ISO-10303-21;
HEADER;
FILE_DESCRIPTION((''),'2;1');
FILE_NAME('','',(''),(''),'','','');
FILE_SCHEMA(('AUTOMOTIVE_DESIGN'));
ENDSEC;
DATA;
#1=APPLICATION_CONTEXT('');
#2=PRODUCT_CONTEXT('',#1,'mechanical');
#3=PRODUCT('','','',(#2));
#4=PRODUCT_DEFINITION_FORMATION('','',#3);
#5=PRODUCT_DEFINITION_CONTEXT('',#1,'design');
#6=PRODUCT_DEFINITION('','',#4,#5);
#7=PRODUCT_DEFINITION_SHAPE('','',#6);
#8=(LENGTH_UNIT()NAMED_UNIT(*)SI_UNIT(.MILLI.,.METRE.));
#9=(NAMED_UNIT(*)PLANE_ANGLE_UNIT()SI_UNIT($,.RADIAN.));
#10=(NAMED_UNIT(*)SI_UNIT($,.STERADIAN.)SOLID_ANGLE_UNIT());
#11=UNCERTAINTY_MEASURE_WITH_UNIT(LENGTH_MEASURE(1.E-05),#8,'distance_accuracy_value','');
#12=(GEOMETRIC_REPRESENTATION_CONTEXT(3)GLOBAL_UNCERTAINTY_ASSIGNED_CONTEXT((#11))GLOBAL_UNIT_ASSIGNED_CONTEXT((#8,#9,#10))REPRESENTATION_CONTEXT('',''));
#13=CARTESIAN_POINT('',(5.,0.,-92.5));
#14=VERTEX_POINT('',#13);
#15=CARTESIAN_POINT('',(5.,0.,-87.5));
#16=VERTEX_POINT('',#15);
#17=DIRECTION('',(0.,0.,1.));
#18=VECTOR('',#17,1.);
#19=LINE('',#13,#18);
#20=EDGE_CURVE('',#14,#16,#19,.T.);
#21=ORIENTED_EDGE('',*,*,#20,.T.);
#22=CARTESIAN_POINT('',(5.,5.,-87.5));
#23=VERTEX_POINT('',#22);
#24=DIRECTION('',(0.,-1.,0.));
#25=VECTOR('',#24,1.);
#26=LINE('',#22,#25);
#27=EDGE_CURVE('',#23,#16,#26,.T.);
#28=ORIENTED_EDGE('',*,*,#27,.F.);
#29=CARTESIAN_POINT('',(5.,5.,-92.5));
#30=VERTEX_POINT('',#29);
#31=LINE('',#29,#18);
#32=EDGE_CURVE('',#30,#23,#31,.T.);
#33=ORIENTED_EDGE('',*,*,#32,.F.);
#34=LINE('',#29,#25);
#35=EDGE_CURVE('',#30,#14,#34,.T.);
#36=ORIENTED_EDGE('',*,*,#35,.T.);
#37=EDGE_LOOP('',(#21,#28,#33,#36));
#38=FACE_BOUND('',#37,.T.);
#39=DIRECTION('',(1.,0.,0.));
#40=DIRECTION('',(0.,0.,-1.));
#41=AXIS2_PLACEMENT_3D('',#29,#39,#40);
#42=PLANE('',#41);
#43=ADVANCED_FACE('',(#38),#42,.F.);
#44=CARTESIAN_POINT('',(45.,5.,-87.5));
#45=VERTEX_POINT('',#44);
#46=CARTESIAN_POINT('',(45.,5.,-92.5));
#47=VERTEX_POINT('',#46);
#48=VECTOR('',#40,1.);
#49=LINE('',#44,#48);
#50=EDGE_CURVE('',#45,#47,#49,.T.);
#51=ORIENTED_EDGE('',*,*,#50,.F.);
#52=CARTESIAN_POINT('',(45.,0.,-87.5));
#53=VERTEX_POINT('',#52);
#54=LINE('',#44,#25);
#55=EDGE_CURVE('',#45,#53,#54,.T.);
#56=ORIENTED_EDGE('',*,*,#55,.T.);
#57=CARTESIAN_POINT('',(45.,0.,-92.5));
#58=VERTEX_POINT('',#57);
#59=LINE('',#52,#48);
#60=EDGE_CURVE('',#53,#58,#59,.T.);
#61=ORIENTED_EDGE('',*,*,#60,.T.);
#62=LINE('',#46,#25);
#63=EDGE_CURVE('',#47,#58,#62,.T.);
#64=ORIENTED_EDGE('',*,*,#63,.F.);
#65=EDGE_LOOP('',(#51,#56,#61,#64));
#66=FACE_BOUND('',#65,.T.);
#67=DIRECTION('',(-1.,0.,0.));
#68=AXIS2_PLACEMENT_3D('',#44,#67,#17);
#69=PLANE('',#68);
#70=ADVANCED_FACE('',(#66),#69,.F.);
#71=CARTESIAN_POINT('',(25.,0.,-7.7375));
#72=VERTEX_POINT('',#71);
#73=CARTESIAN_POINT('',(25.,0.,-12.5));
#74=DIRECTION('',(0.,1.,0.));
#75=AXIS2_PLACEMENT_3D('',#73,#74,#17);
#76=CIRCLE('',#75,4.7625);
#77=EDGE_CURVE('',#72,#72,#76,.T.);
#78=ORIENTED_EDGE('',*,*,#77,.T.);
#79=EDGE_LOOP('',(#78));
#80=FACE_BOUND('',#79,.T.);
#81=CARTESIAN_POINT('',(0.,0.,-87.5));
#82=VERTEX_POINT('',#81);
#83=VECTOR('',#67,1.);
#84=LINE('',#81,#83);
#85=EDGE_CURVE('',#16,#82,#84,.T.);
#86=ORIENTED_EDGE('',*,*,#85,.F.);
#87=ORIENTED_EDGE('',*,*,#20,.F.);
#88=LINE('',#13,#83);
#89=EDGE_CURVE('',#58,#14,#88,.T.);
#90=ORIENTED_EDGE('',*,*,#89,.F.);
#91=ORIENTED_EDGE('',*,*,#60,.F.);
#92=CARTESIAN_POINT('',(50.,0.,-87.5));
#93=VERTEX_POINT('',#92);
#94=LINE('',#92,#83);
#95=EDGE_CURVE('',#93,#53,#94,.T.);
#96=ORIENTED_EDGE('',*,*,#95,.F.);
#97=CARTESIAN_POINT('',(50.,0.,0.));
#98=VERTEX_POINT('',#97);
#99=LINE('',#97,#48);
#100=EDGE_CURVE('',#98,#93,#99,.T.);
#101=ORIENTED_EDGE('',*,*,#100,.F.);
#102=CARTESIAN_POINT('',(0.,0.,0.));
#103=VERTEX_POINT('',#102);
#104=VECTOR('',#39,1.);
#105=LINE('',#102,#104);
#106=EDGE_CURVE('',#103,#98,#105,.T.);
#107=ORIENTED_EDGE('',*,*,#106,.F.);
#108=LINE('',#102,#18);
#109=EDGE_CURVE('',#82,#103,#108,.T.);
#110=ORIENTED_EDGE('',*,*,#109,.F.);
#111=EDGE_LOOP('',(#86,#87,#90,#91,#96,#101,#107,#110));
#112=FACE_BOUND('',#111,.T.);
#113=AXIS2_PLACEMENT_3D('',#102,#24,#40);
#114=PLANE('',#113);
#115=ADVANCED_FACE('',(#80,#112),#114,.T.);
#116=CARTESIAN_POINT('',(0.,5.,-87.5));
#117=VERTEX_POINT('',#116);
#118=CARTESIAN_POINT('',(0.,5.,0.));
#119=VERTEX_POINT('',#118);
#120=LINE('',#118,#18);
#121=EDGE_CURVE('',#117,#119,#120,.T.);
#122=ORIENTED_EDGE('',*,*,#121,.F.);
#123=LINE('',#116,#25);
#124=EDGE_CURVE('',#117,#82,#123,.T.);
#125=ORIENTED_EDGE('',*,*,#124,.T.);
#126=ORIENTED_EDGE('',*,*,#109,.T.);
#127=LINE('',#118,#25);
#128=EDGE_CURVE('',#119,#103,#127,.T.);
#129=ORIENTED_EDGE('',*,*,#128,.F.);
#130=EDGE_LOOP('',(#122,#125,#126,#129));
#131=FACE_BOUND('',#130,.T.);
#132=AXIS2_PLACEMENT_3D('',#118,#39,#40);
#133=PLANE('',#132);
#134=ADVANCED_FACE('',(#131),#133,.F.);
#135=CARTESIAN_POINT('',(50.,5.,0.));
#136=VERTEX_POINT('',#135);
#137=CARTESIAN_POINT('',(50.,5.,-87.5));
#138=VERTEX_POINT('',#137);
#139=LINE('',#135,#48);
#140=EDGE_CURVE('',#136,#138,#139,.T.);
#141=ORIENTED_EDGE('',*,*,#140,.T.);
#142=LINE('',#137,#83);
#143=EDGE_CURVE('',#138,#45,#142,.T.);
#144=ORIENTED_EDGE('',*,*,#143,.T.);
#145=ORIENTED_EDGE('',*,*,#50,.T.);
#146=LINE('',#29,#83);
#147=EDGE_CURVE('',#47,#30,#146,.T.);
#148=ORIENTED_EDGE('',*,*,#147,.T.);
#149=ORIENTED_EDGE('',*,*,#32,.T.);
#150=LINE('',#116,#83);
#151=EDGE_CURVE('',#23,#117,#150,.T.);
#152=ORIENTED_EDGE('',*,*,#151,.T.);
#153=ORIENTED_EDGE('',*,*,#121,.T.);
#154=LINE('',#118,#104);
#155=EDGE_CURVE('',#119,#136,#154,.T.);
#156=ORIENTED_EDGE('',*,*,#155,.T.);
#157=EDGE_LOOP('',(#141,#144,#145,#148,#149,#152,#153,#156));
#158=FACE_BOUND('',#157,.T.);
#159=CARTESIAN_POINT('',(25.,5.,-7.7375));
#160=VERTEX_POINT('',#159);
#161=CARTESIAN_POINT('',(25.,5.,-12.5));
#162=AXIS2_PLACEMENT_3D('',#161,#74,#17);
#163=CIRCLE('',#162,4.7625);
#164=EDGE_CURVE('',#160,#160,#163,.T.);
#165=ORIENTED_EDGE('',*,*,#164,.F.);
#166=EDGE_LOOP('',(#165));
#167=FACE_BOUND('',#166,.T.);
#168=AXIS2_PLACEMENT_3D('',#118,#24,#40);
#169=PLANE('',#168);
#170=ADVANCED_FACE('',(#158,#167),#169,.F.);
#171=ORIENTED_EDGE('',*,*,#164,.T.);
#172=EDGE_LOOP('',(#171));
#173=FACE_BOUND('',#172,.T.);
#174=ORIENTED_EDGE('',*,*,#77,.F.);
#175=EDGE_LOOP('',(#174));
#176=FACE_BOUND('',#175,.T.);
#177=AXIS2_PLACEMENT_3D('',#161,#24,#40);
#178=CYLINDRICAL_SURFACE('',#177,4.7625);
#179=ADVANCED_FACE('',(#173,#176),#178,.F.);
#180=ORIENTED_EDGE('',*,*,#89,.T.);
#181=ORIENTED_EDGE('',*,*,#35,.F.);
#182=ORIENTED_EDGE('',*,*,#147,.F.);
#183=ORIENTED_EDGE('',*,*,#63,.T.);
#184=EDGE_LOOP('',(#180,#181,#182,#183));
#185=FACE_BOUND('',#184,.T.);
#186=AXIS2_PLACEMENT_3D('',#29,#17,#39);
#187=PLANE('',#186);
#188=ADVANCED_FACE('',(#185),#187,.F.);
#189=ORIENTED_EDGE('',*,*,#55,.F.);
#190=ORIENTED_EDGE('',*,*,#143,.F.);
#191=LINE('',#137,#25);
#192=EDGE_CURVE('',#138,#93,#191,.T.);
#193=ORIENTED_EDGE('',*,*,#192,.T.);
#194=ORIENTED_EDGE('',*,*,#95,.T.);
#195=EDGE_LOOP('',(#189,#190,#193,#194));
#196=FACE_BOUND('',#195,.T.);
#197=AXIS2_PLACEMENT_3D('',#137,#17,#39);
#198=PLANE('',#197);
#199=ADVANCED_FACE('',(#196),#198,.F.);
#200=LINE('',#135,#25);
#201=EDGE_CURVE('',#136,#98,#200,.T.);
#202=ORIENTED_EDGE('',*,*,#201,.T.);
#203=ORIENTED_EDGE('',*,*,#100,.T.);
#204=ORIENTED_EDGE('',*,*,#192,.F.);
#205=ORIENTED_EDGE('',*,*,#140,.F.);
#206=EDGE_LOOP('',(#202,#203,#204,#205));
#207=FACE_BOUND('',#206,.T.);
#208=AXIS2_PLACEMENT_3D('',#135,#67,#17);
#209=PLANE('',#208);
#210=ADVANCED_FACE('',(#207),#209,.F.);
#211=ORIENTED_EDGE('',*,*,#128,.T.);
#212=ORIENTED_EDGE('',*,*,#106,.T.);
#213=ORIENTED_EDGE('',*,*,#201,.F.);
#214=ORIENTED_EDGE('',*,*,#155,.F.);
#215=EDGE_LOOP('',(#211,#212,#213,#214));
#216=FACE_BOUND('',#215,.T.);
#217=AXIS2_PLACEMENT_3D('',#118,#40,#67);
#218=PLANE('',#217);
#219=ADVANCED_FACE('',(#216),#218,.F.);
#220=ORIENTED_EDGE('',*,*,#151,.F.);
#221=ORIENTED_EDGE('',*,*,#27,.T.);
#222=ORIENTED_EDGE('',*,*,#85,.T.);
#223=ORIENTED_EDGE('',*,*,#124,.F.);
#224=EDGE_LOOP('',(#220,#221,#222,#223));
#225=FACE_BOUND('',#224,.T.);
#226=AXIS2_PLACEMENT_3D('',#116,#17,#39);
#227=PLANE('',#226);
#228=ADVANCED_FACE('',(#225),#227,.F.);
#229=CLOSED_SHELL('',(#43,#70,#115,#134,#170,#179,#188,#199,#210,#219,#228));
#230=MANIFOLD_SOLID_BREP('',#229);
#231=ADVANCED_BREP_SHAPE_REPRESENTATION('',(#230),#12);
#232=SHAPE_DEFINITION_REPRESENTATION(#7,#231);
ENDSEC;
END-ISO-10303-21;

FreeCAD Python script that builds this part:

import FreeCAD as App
import Part
import Sketcher

doc = App.newDocument("Part")
body = doc.addObject("PartDesign::Body", "Body")

sketch1 = body.newObject("Sketcher::SketchObject", "Sketch")
sketch1.AttachmentSupport = (doc.getObject("XZ_Plane"), [""])
sketch1.MapMode = "FlatFace"
sketch1.addGeometry([
    Part.LineSegment(App.Vector(5, -87.5, 0), App.Vector(0, -87.5, 0)),
    Part.LineSegment(App.Vector(0, -87.5, 0), App.Vector(0, 0, 0)),
    Part.LineSegment(App.Vector(0, 0, 0), App.Vector(50, 0, 0)),
    Part.LineSegment(App.Vector(50, 0, 0), App.Vector(50, -87.5, 0)),
    Part.LineSegment(App.Vector(50, -87.5, 0), App.Vector(45, -87.5, 0)),
    Part.LineSegment(App.Vector(45, -87.5, 0), App.Vector(45, -92.5, 0)),
    Part.LineSegment(App.Vector(45, -92.5, 0), App.Vector(5, -92.5, 0)),
    Part.LineSegment(App.Vector(5, -92.5, 0), App.Vector(5, -87.5, 0)),
    Part.Circle(App.Vector(25, -12.5, 0), App.Vector(0, 0, 1), 4.8),
], False)
sketch1.addConstraint([
    Sketcher.Constraint("Coincident", 0, 2, 1, 1),
    Sketcher.Constraint("Coincident", 1, 2, 2, 1),
    Sketcher.Constraint("Coincident", 2, 2, 3, 1),
    Sketcher.Constraint("Coincident", 3, 2, 4, 1),
    Sketcher.Constraint("Coincident", 4, 2, 5, 1),
    Sketcher.Constraint("Coincident", 5, 2, 6, 1),
    Sketcher.Constraint("Coincident", 6, 2, 7, 1),
    Sketcher.Constraint("Coincident", 7, 2, 0, 1),
    Sketcher.Constraint("Horizontal", 0),
    Sketcher.Constraint("Vertical", 1),
    Sketcher.Constraint("Horizontal", 2),
    Sketcher.Constraint("Vertical", 3),
    Sketcher.Constraint("Horizontal", 4),
    Sketcher.Constraint("Vertical", 5),
    Sketcher.Constraint("Horizontal", 6),
    Sketcher.Constraint("Vertical", 7),
    Sketcher.Constraint("Coincident", 1, 2, -1, 1),
    Sketcher.Constraint("Horizontal", 0, 2, 3, 2),
    Sketcher.Constraint("Equal", 0, 4),
    Sketcher.Constraint("Equal", 4, 5),
    Sketcher.Constraint("DistanceX", 0, 2, 0, 1, 5.0),
    Sketcher.Constraint("DistanceX", 2, 1, 2, 2, 50.0),
    Sketcher.Constraint("Diameter", 8, 9.525),
    Sketcher.Constraint("DistanceY", 1, 1, 1, 2, 87.5),
    Sketcher.Constraint("DistanceX", -1, 1, 8, 3, 25.0),
    Sketcher.Constraint("DistanceY", 0, 2, 8, 3, 75.0),
])
pad1 = body.newObject("PartDesign::Pad", "Pad")
pad1.Profile = sketch1
pad1.Length = 5
pad1.Reversed = True

doc.recompute()
